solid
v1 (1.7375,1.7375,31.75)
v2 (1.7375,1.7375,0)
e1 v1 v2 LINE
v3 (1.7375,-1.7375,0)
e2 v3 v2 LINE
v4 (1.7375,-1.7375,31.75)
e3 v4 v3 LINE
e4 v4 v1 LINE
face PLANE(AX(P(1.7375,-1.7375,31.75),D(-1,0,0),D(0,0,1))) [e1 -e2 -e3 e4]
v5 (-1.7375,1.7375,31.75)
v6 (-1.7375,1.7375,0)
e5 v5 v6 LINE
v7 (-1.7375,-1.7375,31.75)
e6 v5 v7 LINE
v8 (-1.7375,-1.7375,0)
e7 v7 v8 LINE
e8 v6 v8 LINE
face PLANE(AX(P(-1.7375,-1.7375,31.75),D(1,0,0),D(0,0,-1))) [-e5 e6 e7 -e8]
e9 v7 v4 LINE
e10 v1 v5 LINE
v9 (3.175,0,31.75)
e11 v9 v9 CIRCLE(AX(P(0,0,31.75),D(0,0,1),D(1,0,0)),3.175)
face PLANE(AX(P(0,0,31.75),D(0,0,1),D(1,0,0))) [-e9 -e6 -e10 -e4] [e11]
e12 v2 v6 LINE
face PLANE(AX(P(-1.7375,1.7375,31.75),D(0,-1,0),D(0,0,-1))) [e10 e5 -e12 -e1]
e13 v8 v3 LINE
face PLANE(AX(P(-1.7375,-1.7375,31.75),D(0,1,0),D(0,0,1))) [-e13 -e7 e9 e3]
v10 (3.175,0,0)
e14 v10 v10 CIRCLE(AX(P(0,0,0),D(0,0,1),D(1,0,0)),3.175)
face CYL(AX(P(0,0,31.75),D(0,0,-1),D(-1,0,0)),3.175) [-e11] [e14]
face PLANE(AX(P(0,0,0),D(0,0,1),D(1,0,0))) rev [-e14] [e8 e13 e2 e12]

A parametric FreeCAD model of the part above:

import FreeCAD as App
import Part
import Sketcher

V = App.Vector
Q = App.Units.Quantity

doc = App.newDocument("Part")
body = doc.addObject("PartDesign::Body", "Body")

sketch1 = body.newObject("Sketcher::SketchObject", "Sketch")
sketch1.AttachmentSupport = (doc.getObject("XY_Plane"), [""])
sketch1.MapMode = "FlatFace"
sketch1.addGeometry([
    Part.Circle(V(0, 0, 0), V(0, 0, 1), 3.175),
    Part.LineSegment(V(1.7375, -1.7375, 0), V(-1.7375, -1.7375, 0)),
    Part.LineSegment(V(-1.7375, -1.7375, 0), V(-1.7375, 1.7375, 0)),
    Part.LineSegment(V(-1.7375, 1.7375, 0), V(1.7375, 1.7375, 0)),
    Part.LineSegment(V(1.7375, 1.7375, 0), V(1.7375, -1.7375, 0)),
], False)
sketch1.addConstraint([
    Sketcher.Constraint("Coincident", 1, 2, 2, 1),
    Sketcher.Constraint("Coincident", 2, 2, 3, 1),
    Sketcher.Constraint("Coincident", 3, 2, 4, 1),
    Sketcher.Constraint("Coincident", 4, 2, 1, 1),
    Sketcher.Constraint("Horizontal", 1),
    Sketcher.Constraint("Vertical", 2),
    Sketcher.Constraint("Horizontal", 3),
    Sketcher.Constraint("Vertical", 4),
    Sketcher.Constraint("Coincident", 0, 3, -1, 1),
    Sketcher.Constraint("Symmetric", 1, 2, 3, 2, -1, 1),
    Sketcher.Constraint("Equal", 3, 2),
    Sketcher.Constraint("Diameter", 0, Q("0.25 in")),
    Sketcher.Constraint("DistanceX", 1, 2, 1, 1, Q("3.475 mm")),
])
pad1 = body.newObject("PartDesign::Pad", "Pad")
pad1.Profile = sketch1
pad1.Length = Q("1.25 in")

doc.recompute()
